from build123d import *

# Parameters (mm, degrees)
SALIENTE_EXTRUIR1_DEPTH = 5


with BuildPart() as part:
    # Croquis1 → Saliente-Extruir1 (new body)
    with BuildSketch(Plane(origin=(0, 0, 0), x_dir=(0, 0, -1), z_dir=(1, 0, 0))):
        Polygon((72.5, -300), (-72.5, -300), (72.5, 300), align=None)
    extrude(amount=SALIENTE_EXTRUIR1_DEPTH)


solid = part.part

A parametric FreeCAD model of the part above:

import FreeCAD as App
import Part
import Sketcher
from FreeCAD import Vector

doc = App.newDocument("Part")
body = doc.addObject("PartDesign::Body", "Body")

# Sketch on YZ plane
sketch1 = body.newObject("Sketcher::SketchObject", "Sketch")
sketch1.AttachmentSupport = (doc.getObject("YZ_Plane"), [""])
sketch1.MapMode = "FlatFace"
sketch1.addGeometry([
    Part.LineSegment(Vector(-300, 72.5, 0), Vector(-300, -72.5, 0)),
    Part.LineSegment(Vector(-300, -72.5, 0), Vector(300, -72.5, 0)),
    Part.LineSegment(Vector(300, -72.5, 0), Vector(-300, 72.5, 0)),
], False)
sketch1.addConstraint([
    Sketcher.Constraint("Coincident", 0, 2, 1, 1),
    Sketcher.Constraint("Coincident", 1, 2, 2, 1),
    Sketcher.Constraint("Coincident", 2, 2, 0, 1),
    Sketcher.Constraint("Vertical", 0),
    Sketcher.Constraint("Horizontal", 1),
    Sketcher.Constraint("Symmetric", 1, 2, 2, 2, -1, 1),
    Sketcher.Constraint("DistanceX", 1, 1, 1, 2, 600.0),
    Sketcher.Constraint("DistanceY", 0, 2, 0, 1, 145.0),
])
pad1 = body.newObject("PartDesign::Pad", "Pad")
pad1.Profile = sketch1
pad1.Length = 5

doc.recompute()
